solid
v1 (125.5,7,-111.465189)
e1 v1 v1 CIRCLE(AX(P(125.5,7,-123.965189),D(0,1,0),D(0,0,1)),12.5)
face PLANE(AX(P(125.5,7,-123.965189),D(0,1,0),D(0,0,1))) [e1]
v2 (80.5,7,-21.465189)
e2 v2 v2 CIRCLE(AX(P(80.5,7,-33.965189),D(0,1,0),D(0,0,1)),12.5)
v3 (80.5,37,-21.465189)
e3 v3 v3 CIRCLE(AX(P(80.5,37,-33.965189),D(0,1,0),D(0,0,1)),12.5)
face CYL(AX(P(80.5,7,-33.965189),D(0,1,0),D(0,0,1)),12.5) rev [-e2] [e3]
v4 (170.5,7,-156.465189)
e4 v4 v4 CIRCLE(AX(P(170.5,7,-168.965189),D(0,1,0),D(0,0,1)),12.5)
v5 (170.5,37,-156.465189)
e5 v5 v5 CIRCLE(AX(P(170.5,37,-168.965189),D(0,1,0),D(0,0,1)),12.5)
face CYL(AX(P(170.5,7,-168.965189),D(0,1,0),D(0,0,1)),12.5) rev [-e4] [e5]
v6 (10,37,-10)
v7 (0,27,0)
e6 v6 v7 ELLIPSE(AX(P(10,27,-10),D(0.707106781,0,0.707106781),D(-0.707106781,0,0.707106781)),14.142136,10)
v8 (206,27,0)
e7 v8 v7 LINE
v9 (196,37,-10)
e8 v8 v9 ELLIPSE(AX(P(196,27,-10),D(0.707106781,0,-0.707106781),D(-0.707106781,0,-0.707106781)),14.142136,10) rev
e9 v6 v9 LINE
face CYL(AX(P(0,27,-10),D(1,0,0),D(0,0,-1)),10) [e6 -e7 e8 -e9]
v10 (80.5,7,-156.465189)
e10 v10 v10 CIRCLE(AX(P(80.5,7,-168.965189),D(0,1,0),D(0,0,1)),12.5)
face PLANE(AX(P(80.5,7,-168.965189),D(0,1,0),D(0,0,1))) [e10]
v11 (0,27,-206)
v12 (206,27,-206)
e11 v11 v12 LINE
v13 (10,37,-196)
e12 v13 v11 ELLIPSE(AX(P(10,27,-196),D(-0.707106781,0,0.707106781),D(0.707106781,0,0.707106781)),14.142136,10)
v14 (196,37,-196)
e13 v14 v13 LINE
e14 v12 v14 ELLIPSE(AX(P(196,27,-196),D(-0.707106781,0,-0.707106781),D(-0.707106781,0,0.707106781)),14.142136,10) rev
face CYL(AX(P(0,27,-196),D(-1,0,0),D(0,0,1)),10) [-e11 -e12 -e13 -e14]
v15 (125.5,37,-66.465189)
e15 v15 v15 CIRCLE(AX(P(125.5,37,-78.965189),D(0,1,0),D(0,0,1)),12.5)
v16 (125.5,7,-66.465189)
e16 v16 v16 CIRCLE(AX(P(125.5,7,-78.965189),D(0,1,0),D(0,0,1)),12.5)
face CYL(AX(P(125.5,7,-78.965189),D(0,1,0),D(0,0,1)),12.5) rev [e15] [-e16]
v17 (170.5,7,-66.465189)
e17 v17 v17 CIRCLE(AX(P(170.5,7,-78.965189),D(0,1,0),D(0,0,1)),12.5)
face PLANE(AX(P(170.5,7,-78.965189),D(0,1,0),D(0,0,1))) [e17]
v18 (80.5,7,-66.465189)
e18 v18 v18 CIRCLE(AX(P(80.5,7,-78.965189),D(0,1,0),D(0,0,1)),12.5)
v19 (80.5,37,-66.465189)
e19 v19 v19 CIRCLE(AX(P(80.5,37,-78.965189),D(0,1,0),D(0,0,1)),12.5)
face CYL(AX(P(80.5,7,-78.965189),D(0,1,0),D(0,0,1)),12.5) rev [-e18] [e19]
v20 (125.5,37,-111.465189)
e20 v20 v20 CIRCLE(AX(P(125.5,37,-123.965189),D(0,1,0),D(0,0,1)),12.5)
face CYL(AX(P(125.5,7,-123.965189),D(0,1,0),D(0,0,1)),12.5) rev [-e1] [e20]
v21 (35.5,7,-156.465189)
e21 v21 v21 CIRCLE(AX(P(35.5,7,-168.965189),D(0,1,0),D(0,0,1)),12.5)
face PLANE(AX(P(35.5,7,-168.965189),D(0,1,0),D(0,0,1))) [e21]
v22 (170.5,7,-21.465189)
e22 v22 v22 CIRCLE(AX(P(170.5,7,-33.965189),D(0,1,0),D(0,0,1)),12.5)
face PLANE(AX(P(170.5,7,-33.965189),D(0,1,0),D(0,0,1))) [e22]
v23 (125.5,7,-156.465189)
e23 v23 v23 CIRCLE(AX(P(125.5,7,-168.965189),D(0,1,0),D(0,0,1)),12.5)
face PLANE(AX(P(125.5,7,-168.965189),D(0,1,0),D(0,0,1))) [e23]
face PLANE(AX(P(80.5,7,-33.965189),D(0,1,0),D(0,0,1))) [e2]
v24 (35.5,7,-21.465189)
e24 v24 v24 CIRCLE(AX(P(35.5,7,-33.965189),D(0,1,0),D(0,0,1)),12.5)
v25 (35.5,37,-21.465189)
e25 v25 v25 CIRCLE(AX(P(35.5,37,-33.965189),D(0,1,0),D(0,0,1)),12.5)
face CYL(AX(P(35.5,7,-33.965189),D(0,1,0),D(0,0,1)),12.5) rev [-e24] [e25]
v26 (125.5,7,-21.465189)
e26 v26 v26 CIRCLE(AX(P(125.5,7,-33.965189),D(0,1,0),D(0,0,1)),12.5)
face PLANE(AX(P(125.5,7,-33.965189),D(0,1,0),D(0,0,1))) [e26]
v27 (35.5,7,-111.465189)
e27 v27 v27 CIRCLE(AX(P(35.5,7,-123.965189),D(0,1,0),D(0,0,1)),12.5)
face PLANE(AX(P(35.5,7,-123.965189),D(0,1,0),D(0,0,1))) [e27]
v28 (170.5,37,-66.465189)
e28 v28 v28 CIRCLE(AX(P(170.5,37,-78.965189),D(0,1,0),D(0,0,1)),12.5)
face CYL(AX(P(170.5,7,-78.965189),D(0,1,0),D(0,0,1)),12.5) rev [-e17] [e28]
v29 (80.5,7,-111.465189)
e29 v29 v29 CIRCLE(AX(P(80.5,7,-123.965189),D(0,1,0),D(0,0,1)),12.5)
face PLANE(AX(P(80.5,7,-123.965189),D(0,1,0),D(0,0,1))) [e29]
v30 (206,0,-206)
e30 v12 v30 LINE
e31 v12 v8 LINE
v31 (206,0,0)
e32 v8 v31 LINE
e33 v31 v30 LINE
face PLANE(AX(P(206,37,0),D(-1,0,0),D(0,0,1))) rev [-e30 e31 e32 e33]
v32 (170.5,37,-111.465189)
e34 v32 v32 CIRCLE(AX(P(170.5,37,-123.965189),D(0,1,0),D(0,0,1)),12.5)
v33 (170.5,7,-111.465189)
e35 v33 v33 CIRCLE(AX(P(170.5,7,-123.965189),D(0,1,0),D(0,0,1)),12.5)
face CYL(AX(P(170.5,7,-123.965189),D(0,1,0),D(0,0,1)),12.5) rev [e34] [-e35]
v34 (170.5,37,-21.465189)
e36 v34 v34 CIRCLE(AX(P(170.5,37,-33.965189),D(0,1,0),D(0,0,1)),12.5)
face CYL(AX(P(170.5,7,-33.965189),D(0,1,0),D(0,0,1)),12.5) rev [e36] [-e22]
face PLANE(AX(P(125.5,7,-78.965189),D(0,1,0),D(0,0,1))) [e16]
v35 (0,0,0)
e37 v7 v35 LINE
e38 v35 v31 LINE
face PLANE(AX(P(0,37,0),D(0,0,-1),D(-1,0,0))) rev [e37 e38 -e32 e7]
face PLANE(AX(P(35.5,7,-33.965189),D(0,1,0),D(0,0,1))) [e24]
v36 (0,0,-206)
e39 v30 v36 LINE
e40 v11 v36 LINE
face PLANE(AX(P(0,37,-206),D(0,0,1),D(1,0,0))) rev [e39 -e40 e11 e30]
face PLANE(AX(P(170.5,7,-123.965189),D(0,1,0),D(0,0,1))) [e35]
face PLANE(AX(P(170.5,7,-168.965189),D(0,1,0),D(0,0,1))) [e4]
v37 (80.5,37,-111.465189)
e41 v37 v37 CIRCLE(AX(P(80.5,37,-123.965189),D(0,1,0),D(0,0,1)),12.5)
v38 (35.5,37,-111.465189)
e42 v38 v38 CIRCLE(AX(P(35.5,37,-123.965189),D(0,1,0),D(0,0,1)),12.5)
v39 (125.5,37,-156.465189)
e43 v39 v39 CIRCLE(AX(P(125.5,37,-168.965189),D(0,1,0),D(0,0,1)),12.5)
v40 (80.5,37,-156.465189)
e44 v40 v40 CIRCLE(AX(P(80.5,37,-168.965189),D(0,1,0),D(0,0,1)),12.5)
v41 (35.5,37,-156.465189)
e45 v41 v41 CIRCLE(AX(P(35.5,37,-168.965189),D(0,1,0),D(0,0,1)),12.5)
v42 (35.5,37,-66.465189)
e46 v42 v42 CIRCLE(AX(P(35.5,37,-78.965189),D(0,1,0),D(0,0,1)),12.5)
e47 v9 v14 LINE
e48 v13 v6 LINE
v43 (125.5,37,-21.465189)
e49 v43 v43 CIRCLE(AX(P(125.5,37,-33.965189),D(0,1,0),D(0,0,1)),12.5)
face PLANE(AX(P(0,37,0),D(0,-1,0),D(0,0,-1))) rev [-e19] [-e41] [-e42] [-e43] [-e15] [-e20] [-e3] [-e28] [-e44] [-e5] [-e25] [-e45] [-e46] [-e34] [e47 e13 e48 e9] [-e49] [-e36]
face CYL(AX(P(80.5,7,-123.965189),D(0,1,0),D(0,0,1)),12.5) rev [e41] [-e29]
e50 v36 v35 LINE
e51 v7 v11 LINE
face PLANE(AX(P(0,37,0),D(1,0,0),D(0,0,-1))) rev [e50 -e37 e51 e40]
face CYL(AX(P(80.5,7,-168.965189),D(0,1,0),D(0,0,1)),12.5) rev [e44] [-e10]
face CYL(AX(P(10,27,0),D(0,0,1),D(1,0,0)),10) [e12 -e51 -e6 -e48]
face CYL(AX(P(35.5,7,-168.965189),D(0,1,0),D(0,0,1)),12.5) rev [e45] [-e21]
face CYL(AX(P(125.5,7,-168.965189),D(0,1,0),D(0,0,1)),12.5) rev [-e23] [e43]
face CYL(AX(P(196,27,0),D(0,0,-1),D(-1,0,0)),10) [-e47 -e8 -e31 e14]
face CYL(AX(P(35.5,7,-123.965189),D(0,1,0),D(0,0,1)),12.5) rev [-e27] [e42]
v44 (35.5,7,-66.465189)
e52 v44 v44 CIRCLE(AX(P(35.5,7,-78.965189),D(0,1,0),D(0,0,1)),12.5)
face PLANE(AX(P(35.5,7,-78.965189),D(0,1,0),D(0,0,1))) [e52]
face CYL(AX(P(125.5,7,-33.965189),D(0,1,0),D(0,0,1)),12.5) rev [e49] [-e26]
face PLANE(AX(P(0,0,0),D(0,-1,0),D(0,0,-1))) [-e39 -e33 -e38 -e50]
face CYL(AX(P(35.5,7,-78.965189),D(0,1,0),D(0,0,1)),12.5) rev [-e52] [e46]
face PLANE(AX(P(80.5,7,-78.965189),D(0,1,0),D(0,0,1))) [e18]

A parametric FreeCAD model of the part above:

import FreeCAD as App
import Part
import Sketcher


def edges_at(feature, points):
    """Names of the edges that pass closest to the given points."""
    edges = feature.Shape.Edges
    near = lambda p: min(range(len(edges)), key=lambda i: edges[i].distToShape(Part.Vertex(*p))[0])
    return sorted({f"Edge{near(p) + 1}" for p in points})


def add_polygon(sketch, points):
    """Adds a closed chain of lines whose ends are joined by coincident constraints."""
    first, n = sketch.GeometryCount, len(points)
    for a, b in zip(points, points[1:] + points[:1]):
        sketch.addGeometry(Part.LineSegment(App.Vector(*a, 0), App.Vector(*b, 0)), False)
    for i in range(n):
        sketch.addConstraint(Sketcher.Constraint("Coincident", first + i, 2, first + (i + 1) % n, 1))

doc = App.newDocument("Part")
params = doc.addObject("Spreadsheet::Sheet", "Params")
for row, (alias, value) in enumerate([
    ("sketch1_width", "206 mm"),
    ("pad1_length", "37 mm"),
    ("sketch2_diameter", "25 mm"),
    ("pocket1_length", "30 mm"),
    ("linearpattern_pitch", "45 mm"),
    ("fillet_radius", "10 mm"),
], start=1):
    params.set(f"A{row}", alias)
    params.set(f"B{row}", "=" + value)
    params.setAlias(f"B{row}", alias)

body = doc.addObject("PartDesign::Body", "Body")

# Sketch on XZ plane
sketch1 = body.newObject("Sketcher::SketchObject", "Sketch")
sketch1.AttachmentSupport = (doc.getObject("XZ_Plane"), [""])
sketch1.MapMode = "FlatFace"
add_polygon(sketch1, [(0, -206), (0, 0), (206, 0), (206, -206)])  # lines 0-3
sketch1.addConstraint([
    Sketcher.Constraint("Vertical", 0),
    Sketcher.Constraint("Horizontal", 1),
    Sketcher.Constraint("Vertical", 2),
    Sketcher.Constraint("Horizontal", 3),
    Sketcher.Constraint("Coincident", 0, 2, -1, 1),
    Sketcher.Constraint("Equal", 3, 0),
    Sketcher.Constraint("DistanceX", 1, 1, 1, 2, 206.0),
])
sketch1.setExpression("Constraints[10]", "Params.sketch1_width")
pad1 = body.newObject("PartDesign::Pad", "Pad")
pad1.Profile = sketch1
pad1.setExpression("Length", "Params.pad1_length")
pad1.Reversed = True

# Sketch on XZ plane
sketch2 = body.newObject("Sketcher::SketchObject", "Sketch001")
sketch2.AttachmentSupport = (doc.getObject("XZ_Plane"), [""])
sketch2.MapMode = "FlatFace"
sketch2.AttachmentOffset = App.Placement(App.Vector(0, 0, -37), App.Rotation())
sketch2.addGeometry([
    Part.Circle(App.Vector(80, -169, 0), App.Vector(0, 0, 1), 12),
    Part.Circle(App.Vector(36, -169, 0), App.Vector(0, 0, 1), 12),
    Part.Circle(App.Vector(126, -169, 0), App.Vector(0, 0, 1), 12),
    Part.Circle(App.Vector(170, -169, 0), App.Vector(0, 0, 1), 12),
], False)
sketch2.addConstraint([
    Sketcher.Constraint("Equal", 0, 1),
    Sketcher.Constraint("Equal", 1, 2),
    Sketcher.Constraint("Equal", 2, 3),
    Sketcher.Constraint("Horizontal", 0, 3, 1, 3),
    Sketcher.Constraint("Horizontal", 1, 3, 2, 3),
    Sketcher.Constraint("Horizontal", 2, 3, 3, 3),
    Sketcher.Constraint("Diameter", 0, 25.0),
    Sketcher.Constraint("DistanceX", 1, 3, 0, 3, 45.0),
    Sketcher.Constraint("DistanceX", 0, 3, 2, 3, 45.0),
    Sketcher.Constraint("DistanceX", 2, 3, 3, 3, 45.0),
    Sketcher.Constraint("DistanceX", -1, 1, 0, 3, 80.5),
    Sketcher.Constraint("DistanceY", 0, 3, -1, 1, 168.965189),
])
sketch2.setExpression("Constraints[6]", "Params.sketch2_diameter")
pocket1 = body.newObject("PartDesign::Pocket", "Pocket")
pocket1.Profile = sketch2
pocket1.setExpression("Length", "Params.pocket1_length")
pocket1.Reversed = True
doc.recompute()

linearpattern = body.newObject("PartDesign::LinearPattern", "LinearPattern")
linearpattern.Originals = [pocket1]
linearpattern.Direction = (doc.getObject("Z_Axis"), [""])
linearpattern.Mode = "offset"
linearpattern.setExpression("Offset", "Params.linearpattern_pitch")
linearpattern.Occurrences = 4
body.Tip = linearpattern
doc.recompute()

fillet = body.newObject("PartDesign::Fillet", "Fillet")
fillet.Base = (linearpattern, edges_at(linearpattern, [
    (206, 37, -103),
    (103, 37, -206),
    (0, 37, -103),
    (103, 37, 0),
]))
fillet.setExpression("Radius", "Params.fillet_radius")

doc.recompute()
